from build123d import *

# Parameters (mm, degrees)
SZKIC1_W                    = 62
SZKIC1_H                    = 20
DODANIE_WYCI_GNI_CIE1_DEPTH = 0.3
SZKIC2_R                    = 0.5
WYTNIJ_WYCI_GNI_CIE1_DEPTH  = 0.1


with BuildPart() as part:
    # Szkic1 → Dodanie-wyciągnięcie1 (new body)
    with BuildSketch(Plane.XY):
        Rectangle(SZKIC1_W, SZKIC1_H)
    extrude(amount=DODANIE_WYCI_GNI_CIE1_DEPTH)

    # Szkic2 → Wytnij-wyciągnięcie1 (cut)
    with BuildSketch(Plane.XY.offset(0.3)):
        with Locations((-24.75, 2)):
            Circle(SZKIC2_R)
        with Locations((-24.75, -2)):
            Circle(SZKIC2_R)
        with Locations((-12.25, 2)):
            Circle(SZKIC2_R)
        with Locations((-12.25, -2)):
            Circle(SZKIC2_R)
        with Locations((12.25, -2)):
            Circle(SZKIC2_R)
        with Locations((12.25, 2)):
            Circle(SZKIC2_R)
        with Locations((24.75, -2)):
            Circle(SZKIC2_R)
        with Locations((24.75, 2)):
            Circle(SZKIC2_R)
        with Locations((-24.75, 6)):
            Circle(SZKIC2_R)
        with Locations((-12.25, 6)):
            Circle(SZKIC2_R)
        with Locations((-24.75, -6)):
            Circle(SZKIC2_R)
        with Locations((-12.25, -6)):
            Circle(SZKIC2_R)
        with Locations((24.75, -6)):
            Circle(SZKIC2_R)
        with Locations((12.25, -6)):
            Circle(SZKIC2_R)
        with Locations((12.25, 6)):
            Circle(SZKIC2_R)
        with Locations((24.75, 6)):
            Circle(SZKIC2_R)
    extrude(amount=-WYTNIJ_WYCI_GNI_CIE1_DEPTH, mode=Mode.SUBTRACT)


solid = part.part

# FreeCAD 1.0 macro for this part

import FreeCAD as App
import Part
import Sketcher

V = App.Vector

doc = App.newDocument("Part")
params = doc.addObject("Spreadsheet::Sheet", "Params")
for row, (alias, value) in enumerate([
    ("sketch1_width", "62 mm"),
    ("sketch1_height", "20 mm"),
    ("pad1_length", "0.3 mm"),
    ("sketch2_diameter", "1 mm"),
    ("pocket1_length", "0.1 mm"),
], start=1):
    params.set(f"A{row}", alias)
    params.set(f"B{row}", "=" + value)
    params.setAlias(f"B{row}", alias)

body = doc.addObject("PartDesign::Body", "Body")

# Sketch on XY plane
sketch1 = body.newObject("Sketcher::SketchObject", "Sketch")
sketch1.AttachmentSupport = (doc.getObject("XY_Plane"), [""])
sketch1.MapMode = "FlatFace"
sketch1.addGeometry([
    Part.LineSegment(V(-31, 10, 0), V(-31, -10, 0)),
    Part.LineSegment(V(-31, -10, 0), V(31, -10, 0)),
    Part.LineSegment(V(31, -10, 0), V(31, 10, 0)),
    Part.LineSegment(V(31, 10, 0), V(-31, 10, 0)),
], False)
sketch1.addConstraint([
    Sketcher.Constraint("Coincident", 0, 2, 1, 1),
    Sketcher.Constraint("Coincident", 1, 2, 2, 1),
    Sketcher.Constraint("Coincident", 2, 2, 3, 1),
    Sketcher.Constraint("Coincident", 3, 2, 0, 1),
    Sketcher.Constraint("Vertical", 0),
    Sketcher.Constraint("Horizontal", 1),
    Sketcher.Constraint("Vertical", 2),
    Sketcher.Constraint("Horizontal", 3),
    Sketcher.Constraint("Symmetric", 0, 2, 2, 2, -1, 1),
    Sketcher.Constraint("DistanceX", 1, 1, 1, 2, 62.0),
    Sketcher.Constraint("DistanceY", 0, 2, 0, 1, 20.0),
])
sketch1.setExpression("Constraints[9]", "Params.sketch1_width")
sketch1.setExpression("Constraints[10]", "Params.sketch1_height")
pad1 = body.newObject("PartDesign::Pad", "Pad")
pad1.Profile = sketch1
pad1.setExpression("Length", "Params.pad1_length")

# Sketch on XY plane
sketch2 = body.newObject("Sketcher::SketchObject", "Sketch001")
sketch2.AttachmentSupport = (doc.getObject("XY_Plane"), [""])
sketch2.MapMode = "FlatFace"
sketch2.AttachmentOffset = App.Placement(V(0, 0, 0.3), App.Rotation())
sketch2.addGeometry([
    Part.Circle(V(-24.8, 2, 0), V(0, 0, 1), 0.5),  # 0
    Part.Circle(V(-24.8, -2, 0), V(0, 0, 1), 0.5),  # 1
    Part.Circle(V(-12.2, 2, 0), V(0, 0, 1), 0.5),  # 2
    Part.Circle(V(-12.2, -2, 0), V(0, 0, 1), 0.5),  # 3
    Part.Circle(V(12.2, -2, 0), V(0, 0, 1), 0.5),  # 4
    Part.Circle(V(12.2, 2, 0), V(0, 0, 1), 0.5),  # 5
    Part.Circle(V(24.8, -2, 0), V(0, 0, 1), 0.5),  # 6
    Part.Circle(V(24.8, 2, 0), V(0, 0, 1), 0.5),  # 7
    Part.Circle(V(-24.8, 6, 0), V(0, 0, 1), 0.5),  # 8
    Part.Circle(V(-12.2, 6, 0), V(0, 0, 1), 0.5),  # 9
    Part.Circle(V(-24.8, -6, 0), V(0, 0, 1), 0.5),  # 10
    Part.Circle(V(-12.2, -6, 0), V(0, 0, 1), 0.5),  # 11
    Part.Circle(V(24.8, -6, 0), V(0, 0, 1), 0.5),  # 12
    Part.Circle(V(12.2, -6, 0), V(0, 0, 1), 0.5),  # 13
    Part.Circle(V(12.2, 6, 0), V(0, 0, 1), 0.5),  # 14
    Part.Circle(V(24.8, 6, 0), V(0, 0, 1), 0.5),  # 15
], False)
sketch2.addConstraint([
    Sketcher.Constraint("Equal", 0, 1),
    Sketcher.Constraint("Equal", 1, 2),
    Sketcher.Constraint("Equal", 2, 3),
    Sketcher.Constraint("Equal", 3, 4),
    Sketcher.Constraint("Equal", 4, 5),
    Sketcher.Constraint("Equal", 5, 6),
    Sketcher.Constraint("Equal", 6, 7),
    Sketcher.Constraint("Equal", 7, 8),
    Sketcher.Constraint("Equal", 8, 9),
    Sketcher.Constraint("Equal", 9, 10),
    Sketcher.Constraint("Equal", 10, 11),
    Sketcher.Constraint("Equal", 11, 12),
    Sketcher.Constraint("Equal", 12, 13),
    Sketcher.Constraint("Equal", 13, 14),
    Sketcher.Constraint("Equal", 14, 15),
    Sketcher.Constraint("Symmetric", 2, 3, 4, 3, -1, 1),
    Sketcher.Constraint("Symmetric", 3, 3, 5, 3, -1, 1),
    Sketcher.Constraint("Symmetric", 0, 3, 6, 3, -1, 1),
    Sketcher.Constraint("Symmetric", 1, 3, 7, 3, -1, 1),
    Sketcher.Constraint("Symmetric", 8, 3, 12, 3, -1, 1),
    Sketcher.Constraint("Symmetric", 9, 3, 13, 3, -1, 1),
    Sketcher.Constraint("Symmetric", 11, 3, 14, 3, -1, 1),
    Sketcher.Constraint("Symmetric", 10, 3, 15, 3, -1, 1),
    Sketcher.Constraint("Symmetric", 3, 3, 4, 3, -2),
    Sketcher.Constraint("Symmetric", 1, 3, 6, 3, -2),
    Sketcher.Constraint("Symmetric", 10, 3, 12, 3, -2),
    Sketcher.Constraint("Symmetric", 11, 3, 13, 3, -2),
    Sketcher.Constraint("Horizontal", 0, 3, 2, 3),
    Sketcher.Constraint("Horizontal", 8, 3, 9, 3),
    Sketcher.Constraint("Vertical", 1, 3, 8, 3),
    Sketcher.Constraint("Vertical", 3, 3, 9, 3),
    Sketcher.Constraint("Diameter", 0, 1.0),
    Sketcher.Constraint("DistanceY", -1, 1, 0, 3, 2.0),
    Sketcher.Constraint("DistanceY", -1, 1, 8, 3, 6.0),
    Sketcher.Constraint("DistanceX", 1, 3, 4, 3, 37.0),
    Sketcher.Constraint("DistanceX", 0, 3, 2, 3, 12.5),
])
sketch2.setExpression("Constraints[31]", "Params.sketch2_diameter")
pocket1 = body.newObject("PartDesign::Pocket", "Pocket")
pocket1.Profile = sketch2
pocket1.setExpression("Length", "Params.pocket1_length")

doc.recompute()
